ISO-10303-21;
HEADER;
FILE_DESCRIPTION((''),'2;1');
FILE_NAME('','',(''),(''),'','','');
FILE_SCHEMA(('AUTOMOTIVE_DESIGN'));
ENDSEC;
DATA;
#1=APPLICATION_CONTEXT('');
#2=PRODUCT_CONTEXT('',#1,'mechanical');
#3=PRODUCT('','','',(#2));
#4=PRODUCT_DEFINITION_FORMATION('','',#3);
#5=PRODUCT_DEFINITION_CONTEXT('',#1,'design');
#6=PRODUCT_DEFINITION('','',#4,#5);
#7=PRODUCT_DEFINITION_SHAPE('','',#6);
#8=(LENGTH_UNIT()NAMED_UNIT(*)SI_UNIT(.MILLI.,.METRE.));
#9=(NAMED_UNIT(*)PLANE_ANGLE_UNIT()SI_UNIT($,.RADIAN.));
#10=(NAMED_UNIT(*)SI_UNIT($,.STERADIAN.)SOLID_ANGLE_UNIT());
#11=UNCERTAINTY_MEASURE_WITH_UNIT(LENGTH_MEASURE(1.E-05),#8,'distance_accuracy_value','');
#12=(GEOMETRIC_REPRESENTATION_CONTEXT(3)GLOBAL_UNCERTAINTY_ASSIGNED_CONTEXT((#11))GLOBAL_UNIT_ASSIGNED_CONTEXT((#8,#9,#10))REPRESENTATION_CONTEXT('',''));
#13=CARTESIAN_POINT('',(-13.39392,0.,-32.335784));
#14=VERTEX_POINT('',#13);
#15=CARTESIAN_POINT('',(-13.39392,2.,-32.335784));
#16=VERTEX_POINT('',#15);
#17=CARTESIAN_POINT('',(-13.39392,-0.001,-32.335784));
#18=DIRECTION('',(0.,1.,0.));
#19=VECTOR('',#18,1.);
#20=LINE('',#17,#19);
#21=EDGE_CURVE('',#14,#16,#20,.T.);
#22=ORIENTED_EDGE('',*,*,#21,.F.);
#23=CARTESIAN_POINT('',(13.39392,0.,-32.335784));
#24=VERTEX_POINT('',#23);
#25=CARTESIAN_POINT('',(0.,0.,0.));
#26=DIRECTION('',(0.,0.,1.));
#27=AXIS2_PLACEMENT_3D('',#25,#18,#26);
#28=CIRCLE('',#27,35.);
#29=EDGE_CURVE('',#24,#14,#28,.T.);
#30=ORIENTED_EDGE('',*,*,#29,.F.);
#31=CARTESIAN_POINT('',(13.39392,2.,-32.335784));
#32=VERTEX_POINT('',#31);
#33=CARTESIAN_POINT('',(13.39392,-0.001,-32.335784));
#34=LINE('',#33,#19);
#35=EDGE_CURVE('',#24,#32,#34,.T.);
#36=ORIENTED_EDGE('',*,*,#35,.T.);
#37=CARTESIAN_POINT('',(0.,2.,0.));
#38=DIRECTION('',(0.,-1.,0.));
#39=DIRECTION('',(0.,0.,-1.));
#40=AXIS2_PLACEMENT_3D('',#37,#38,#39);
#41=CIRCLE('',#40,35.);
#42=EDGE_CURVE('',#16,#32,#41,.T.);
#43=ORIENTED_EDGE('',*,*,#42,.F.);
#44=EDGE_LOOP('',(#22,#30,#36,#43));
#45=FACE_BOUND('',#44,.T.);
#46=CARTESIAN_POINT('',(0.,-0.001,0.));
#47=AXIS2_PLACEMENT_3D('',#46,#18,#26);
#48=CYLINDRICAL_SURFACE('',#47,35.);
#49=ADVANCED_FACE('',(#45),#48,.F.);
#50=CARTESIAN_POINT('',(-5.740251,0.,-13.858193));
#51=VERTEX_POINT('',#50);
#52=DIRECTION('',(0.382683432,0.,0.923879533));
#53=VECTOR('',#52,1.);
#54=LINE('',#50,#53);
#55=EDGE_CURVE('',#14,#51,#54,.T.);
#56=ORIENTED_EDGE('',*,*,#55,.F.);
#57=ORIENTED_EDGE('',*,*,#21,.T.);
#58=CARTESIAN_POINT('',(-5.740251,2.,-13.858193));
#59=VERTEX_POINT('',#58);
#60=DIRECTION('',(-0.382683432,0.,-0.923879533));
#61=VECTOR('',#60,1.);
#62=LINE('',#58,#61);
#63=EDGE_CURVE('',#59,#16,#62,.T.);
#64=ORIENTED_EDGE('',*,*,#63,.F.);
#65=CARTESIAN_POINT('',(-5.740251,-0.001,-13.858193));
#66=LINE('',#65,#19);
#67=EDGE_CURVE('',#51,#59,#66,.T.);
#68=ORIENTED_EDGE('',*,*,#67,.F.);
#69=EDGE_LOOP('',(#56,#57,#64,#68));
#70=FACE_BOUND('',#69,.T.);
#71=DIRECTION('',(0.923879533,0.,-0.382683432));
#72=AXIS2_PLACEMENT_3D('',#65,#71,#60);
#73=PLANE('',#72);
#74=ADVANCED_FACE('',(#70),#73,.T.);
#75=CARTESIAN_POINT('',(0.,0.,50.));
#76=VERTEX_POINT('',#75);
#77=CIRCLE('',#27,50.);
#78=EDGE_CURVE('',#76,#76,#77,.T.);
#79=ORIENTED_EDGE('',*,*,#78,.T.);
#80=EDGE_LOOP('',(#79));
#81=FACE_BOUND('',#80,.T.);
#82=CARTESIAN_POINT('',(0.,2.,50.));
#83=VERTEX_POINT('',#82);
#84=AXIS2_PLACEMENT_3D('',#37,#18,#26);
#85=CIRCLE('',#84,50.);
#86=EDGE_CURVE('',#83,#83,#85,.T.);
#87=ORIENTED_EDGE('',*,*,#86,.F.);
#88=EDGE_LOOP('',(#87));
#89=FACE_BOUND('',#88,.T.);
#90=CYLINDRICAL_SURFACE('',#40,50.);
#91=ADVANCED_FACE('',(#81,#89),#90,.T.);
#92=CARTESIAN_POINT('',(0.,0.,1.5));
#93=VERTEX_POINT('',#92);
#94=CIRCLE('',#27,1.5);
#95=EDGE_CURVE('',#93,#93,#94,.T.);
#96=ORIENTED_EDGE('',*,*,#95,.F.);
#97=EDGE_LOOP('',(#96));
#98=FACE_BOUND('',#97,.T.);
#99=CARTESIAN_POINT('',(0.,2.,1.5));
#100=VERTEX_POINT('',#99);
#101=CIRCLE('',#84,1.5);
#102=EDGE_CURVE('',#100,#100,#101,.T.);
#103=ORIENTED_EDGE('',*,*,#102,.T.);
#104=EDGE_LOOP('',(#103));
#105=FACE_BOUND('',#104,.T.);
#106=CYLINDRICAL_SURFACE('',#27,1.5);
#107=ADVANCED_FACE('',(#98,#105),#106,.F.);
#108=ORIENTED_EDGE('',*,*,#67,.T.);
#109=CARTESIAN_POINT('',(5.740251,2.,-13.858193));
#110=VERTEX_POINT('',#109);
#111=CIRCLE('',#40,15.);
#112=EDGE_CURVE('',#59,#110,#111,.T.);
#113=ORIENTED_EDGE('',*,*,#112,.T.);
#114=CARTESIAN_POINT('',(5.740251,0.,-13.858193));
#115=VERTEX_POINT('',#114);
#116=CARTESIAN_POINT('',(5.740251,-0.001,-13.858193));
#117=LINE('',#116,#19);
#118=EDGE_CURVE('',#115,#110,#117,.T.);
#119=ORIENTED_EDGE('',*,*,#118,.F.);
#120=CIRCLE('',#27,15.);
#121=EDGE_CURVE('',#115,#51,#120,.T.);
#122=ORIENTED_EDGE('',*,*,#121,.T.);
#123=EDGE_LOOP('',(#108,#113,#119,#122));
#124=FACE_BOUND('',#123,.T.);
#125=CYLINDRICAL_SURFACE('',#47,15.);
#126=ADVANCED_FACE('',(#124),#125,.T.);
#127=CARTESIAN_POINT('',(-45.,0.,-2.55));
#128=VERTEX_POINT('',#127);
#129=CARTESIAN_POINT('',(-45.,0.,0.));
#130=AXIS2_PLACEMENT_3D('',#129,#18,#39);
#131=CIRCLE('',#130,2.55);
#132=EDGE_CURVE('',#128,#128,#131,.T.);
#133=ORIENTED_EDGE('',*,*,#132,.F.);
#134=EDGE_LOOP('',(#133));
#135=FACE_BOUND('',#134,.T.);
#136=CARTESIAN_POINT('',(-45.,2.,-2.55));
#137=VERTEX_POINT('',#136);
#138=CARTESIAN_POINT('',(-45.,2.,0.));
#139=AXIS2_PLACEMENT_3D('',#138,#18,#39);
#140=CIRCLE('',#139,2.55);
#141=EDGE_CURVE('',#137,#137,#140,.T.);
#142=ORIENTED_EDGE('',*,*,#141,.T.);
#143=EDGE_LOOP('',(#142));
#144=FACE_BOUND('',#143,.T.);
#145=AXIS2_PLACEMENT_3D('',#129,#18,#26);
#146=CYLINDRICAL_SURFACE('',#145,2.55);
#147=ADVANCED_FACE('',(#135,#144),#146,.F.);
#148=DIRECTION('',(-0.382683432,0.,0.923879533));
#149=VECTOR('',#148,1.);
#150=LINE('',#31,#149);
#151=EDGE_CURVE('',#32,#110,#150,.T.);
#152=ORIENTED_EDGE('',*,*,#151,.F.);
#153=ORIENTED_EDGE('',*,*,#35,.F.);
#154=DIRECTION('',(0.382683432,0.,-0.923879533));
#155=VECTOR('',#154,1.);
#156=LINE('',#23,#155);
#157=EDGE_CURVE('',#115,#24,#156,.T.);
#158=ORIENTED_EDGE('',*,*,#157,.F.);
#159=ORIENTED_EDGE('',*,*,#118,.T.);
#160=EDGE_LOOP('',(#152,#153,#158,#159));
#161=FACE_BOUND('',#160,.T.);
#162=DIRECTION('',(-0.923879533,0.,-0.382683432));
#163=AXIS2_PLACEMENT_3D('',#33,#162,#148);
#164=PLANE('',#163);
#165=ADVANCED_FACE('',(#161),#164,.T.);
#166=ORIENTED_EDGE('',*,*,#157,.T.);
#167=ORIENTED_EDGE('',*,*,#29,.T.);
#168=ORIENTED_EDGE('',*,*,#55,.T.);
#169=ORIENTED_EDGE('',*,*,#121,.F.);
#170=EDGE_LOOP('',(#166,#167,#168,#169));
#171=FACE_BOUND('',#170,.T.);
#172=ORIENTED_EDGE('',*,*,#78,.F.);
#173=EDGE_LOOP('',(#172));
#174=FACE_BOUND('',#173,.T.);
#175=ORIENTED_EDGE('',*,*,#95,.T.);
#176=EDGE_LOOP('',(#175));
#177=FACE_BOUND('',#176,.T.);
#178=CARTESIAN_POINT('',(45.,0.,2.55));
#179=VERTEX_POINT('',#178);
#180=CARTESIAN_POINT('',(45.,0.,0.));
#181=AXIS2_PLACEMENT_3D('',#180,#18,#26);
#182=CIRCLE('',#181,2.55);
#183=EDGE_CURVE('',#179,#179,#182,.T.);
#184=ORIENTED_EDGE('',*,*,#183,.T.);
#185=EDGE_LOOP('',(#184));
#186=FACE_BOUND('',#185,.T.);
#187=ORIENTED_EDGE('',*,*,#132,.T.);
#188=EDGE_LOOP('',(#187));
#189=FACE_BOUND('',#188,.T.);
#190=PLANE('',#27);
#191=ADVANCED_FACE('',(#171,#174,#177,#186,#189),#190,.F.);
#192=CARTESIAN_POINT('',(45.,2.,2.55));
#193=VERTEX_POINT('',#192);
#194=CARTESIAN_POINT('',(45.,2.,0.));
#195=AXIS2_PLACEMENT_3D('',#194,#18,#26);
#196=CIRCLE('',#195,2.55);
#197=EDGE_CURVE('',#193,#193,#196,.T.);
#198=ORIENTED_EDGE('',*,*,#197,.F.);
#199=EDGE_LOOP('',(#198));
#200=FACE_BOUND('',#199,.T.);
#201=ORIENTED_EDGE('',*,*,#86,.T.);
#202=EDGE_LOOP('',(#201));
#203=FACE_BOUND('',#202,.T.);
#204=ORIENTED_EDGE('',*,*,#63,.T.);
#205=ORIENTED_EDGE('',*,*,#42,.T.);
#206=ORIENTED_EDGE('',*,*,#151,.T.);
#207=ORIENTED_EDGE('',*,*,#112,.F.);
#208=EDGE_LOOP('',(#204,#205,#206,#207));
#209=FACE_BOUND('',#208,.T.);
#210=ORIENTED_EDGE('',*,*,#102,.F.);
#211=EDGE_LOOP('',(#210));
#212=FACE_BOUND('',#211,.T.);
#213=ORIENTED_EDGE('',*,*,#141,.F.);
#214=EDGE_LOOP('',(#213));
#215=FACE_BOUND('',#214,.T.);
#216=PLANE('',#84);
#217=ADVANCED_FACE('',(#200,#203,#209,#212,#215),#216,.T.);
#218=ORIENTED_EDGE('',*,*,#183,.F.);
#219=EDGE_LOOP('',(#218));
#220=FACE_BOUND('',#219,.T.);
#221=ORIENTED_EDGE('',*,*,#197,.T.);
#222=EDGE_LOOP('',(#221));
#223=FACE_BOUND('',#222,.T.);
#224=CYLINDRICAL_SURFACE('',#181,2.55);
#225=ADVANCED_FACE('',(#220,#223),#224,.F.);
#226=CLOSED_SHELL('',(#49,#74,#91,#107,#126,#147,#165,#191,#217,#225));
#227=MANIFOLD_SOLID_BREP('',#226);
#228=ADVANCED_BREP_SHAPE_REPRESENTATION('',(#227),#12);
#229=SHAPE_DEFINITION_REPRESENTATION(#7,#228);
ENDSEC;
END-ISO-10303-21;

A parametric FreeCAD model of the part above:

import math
import FreeCAD as App
import Part
import Sketcher
from FreeCAD import Vector
Q = App.Units.Quantity

doc = App.newDocument("Part")
body = doc.addObject("PartDesign::Body", "Body")

# Sketch on XZ plane
sketch1 = body.newObject("Sketcher::SketchObject", "Sketch")
sketch1.AttachmentSupport = (doc.getObject("XZ_Plane"), [""])
sketch1.MapMode = "FlatFace"
sketch1.addGeometry(Part.Circle(Vector(0, 0, 0), Vector(0, 0, 1), 50), False)
sketch1.addConstraint([
    Sketcher.Constraint("Coincident", 0, 3, -1, 1),
    Sketcher.Constraint("Diameter", 0, Q("100 mm")),
])
pad1 = body.newObject("PartDesign::Pad", "Pad")
pad1.Profile = sketch1
pad1.Length = 2
pad1.Reversed = True

# Sketch on XZ plane
sketch2 = body.newObject("Sketcher::SketchObject", "Sketch001")
sketch2.AttachmentSupport = (doc.getObject("XZ_Plane"), [""])
sketch2.MapMode = "FlatFace"
sketch2.AttachmentOffset = App.Placement(Vector(0, 0, -2), App.Rotation())
sketch2.addGeometry([
    Part.LineSegment(Vector(-13, -32, 0), Vector(-6, -14, 0)),
    Part.ArcOfCircle(Part.Circle(Vector(0, 0, 0), Vector(0, 0, 1), 15), math.radians(-112), math.radians(-68)),
    Part.LineSegment(Vector(6, -14, 0), Vector(13, -32, 0)),
    Part.ArcOfCircle(Part.Circle(Vector(0, 0, 0), Vector(0, 0, 1), 35), math.radians(-112), math.radians(-68)),
], False)
sketch2.addConstraint([
    Sketcher.Constraint("Coincident", 0, 2, 1, 1),
    Sketcher.Constraint("Coincident", 1, 2, 2, 1),
    Sketcher.Constraint("Coincident", 2, 2, 3, 2),
    Sketcher.Constraint("Coincident", 3, 1, 0, 1),
    Sketcher.Constraint("Coincident", 1, 3, -1, 1),
    Sketcher.Constraint("Coincident", 3, 3, -1, 1),
    Sketcher.Constraint("Horizontal", 0, 2, 1, 2),
    Sketcher.Constraint("Horizontal", 2, 2, 3, 1),
    Sketcher.Constraint("Radius", 1, Q("15 mm")),
    Sketcher.Constraint("Radius", 3, Q("35 mm")),
    Sketcher.Constraint("Angle", 0, Q("67.5 deg")),
    Sketcher.Constraint("DistanceX", 0, 2, -1, 1, Q("5.740251 mm")),
])
pocket1 = body.newObject("PartDesign::Pocket", "Pocket")
pocket1.Profile = sketch2
pocket1.Type = "UpToFirst"
pocket1.Reversed = True

# Sketch on XZ plane
sketch3 = body.newObject("Sketcher::SketchObject", "Sketch002")
sketch3.AttachmentSupport = (doc.getObject("XZ_Plane"), [""])
sketch3.MapMode = "FlatFace"
sketch3.AttachmentOffset = App.Placement(Vector(0, 0, -2), App.Rotation())
sketch3.addGeometry(Part.Circle(Vector(45, 0, 0), Vector(0, 0, 1), 2.5), False)
sketch3.addConstraint([
    Sketcher.Constraint("PointOnObject", 0, 3, -1),
    Sketcher.Constraint("Diameter", 0, Q("5.1 mm")),
    Sketcher.Constraint("DistanceX", -1, 1, 0, 3, Q("45 mm")),
])
pocket2 = body.newObject("PartDesign::Pocket", "Pocket001")
pocket2.Profile = sketch3
pocket2.Type = "ThroughAll"
pocket2.Reversed = True
doc.recompute()

polarpattern = body.newObject("PartDesign::PolarPattern", "PolarPattern")
polarpattern.Originals = [pocket2]
polarpattern.Axis = (doc.getObject("Y_Axis"), [""])
polarpattern.Angle = 360
polarpattern.Occurrences = 2
body.Tip = polarpattern

# Sketch on XZ plane
sketch4 = body.newObject("Sketcher::SketchObject", "Sketch003")
sketch4.AttachmentSupport = (doc.getObject("XZ_Plane"), [""])
sketch4.MapMode = "FlatFace"
sketch4.AttachmentOffset = App.Placement(Vector(0, 0, -2), App.Rotation())
sketch4.addGeometry(Part.Circle(Vector(0, 0, 0), Vector(0, 0, 1), 1.5), False)
sketch4.addConstraint([
    Sketcher.Constraint("Coincident", 0, 3, -1, 1),
    Sketcher.Constraint("Diameter", 0, Q("3 mm")),
])
pocket3 = body.newObject("PartDesign::Pocket", "Pocket002")
pocket3.Profile = sketch4
pocket3.Type = "ThroughAll"
pocket3.Reversed = True

doc.recompute()
